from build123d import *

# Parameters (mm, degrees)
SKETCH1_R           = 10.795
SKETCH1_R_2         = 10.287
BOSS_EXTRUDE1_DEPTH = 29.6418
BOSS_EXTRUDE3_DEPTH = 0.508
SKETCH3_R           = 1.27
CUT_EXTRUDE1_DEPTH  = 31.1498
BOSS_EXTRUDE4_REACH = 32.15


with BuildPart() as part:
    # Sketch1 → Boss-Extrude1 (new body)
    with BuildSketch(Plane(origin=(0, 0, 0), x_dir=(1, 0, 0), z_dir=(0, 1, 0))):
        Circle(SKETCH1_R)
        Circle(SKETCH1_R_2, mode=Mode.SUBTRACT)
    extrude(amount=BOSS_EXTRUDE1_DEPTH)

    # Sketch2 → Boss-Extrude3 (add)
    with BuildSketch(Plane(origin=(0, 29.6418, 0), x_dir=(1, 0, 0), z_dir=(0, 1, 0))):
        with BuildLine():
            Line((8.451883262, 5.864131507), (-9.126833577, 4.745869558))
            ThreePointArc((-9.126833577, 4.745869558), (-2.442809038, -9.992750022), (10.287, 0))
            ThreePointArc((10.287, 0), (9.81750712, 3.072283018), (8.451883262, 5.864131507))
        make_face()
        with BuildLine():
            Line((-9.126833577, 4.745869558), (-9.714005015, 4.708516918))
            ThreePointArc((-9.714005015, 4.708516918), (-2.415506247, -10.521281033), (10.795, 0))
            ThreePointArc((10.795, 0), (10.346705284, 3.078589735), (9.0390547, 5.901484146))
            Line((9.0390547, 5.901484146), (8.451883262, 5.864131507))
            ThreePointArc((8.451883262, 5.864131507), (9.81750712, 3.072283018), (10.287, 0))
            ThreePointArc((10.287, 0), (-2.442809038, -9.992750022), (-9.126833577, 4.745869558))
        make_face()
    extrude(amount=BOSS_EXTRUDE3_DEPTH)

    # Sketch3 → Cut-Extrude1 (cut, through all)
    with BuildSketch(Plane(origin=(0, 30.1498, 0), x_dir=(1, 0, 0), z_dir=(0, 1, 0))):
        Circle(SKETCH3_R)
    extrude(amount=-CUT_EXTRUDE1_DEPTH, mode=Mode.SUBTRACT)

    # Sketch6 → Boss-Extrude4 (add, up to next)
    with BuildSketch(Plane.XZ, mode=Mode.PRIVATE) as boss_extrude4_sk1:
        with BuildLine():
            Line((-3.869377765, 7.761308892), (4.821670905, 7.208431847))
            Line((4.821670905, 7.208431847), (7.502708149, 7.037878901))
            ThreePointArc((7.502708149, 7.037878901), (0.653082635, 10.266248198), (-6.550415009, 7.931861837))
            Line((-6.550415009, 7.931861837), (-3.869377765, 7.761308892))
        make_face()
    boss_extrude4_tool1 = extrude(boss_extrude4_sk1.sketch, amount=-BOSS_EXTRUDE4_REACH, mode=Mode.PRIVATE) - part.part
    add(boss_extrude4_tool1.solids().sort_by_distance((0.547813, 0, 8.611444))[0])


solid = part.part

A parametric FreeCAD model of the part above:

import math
import FreeCAD as App
import Part
import Sketcher
from FreeCAD import Vector
Q = App.Units.Quantity

doc = App.newDocument("Part")
body = doc.addObject("PartDesign::Body", "Body")

# Sketch on XZ plane
sketch1 = doc.addObject("Sketcher::SketchObject", "Sketch")
body.addObject(sketch1)
sketch1.AttachmentSupport = (doc.XZ_Plane, [""])
sketch1.MapMode = "FlatFace"
sketch1.addGeometry([
    Part.Circle(Vector(0, 0, 0), Vector(0, 0, 1), 10.795),
    Part.Circle(Vector(0, 0, 0), Vector(0, 0, 1), 10.287),
], False)
sketch1.addConstraint([
    Sketcher.Constraint("Coincident", 0, 3, -1, 1),
    Sketcher.Constraint("Coincident", 1, 3, -1, 1),
    Sketcher.Constraint("Diameter", 0, Q("0.85 in")),
    Sketcher.Constraint("Diameter", 1, Q("0.81 in")),
])
pad1 = doc.addObject("PartDesign::Pad", "Pad")
body.addObject(pad1)
pad1.Profile = sketch1
pad1.Length = Q("1.167 in")
pad1.Reversed = True

# Sketch on XZ plane
sketch2 = doc.addObject("Sketcher::SketchObject", "Sketch001")
body.addObject(sketch2)
sketch2.AttachmentSupport = (doc.XZ_Plane, [""])
sketch2.MapMode = "FlatFace"
sketch2.AttachmentOffset = App.Placement(Vector(0, 0, -1.167 * 25.4), App.Rotation())
sketch2.addGeometry([
    Part.LineSegment(Vector(8.451883, -5.864132, 0), Vector(-9.126834, -4.74587, 0)),  # 0
    Part.LineSegment(Vector(-9.126834, -4.74587, 0), Vector(-9.714005, -4.708517, 0)),  # 1
    Part.ArcOfCircle(Part.Circle(Vector(0, 0, 0), Vector(0, 0, 1), 10.795), math.radians(0), math.radians(205.860131)),  # 2
    Part.ArcOfCircle(Part.Circle(Vector(0, 0, 0), Vector(0, 0, 1), 10.795), math.radians(-33.14001), math.radians(0)),  # 3
    Part.LineSegment(Vector(9.039055, -5.901484, 0), Vector(8.451883, -5.864132, 0)),  # 4
], False)
sketch2.addConstraint([
    Sketcher.Constraint("Coincident", 0, 2, 1, 1),
    Sketcher.Constraint("Coincident", 1, 2, 2, 2),
    Sketcher.Constraint("Tangent", 2, 1, 3, 2),
    Sketcher.Constraint("Coincident", 3, 1, 4, 1),
    Sketcher.Constraint("Coincident", 4, 2, 0, 1),
    Sketcher.Constraint("Coincident", 2, 3, -1, 1),
    Sketcher.Constraint("Equal", 2, 3),
    Sketcher.Constraint("PointOnObject", 2, 1, -1),
    Sketcher.Constraint("Parallel", 0, 1),
    Sketcher.Constraint("Parallel", 1, 4),
    Sketcher.Constraint("Equal", 1, 4),
    Sketcher.Constraint("Radius", 2, Q("0.425 in")),
    Sketcher.Constraint("Distance", 0, Q("17.61425 mm")),
    Sketcher.Constraint("Distance", 1, Q("0.588358 mm")),
    Sketcher.Constraint("DistanceY", 0, 2, -1, 1, Q("4.74587 mm")),
])
pad2 = doc.addObject("PartDesign::Pad", "Pad001")
body.addObject(pad2)
pad2.Profile = sketch2
pad2.Length = Q("0.02 in")
pad2.Reversed = True

# Sketch on XZ plane
sketch3 = doc.addObject("Sketcher::SketchObject", "Sketch002")
body.addObject(sketch3)
sketch3.AttachmentSupport = (doc.XZ_Plane, [""])
sketch3.MapMode = "FlatFace"
sketch3.AttachmentOffset = App.Placement(Vector(0, 0, -1.187 * 25.4), App.Rotation())
sketch3.addGeometry(Part.Circle(Vector(0, 0, 0), Vector(0, 0, 1), 1.27), False)
sketch3.addConstraint([
    Sketcher.Constraint("Coincident", 0, 3, -1, 1),
    Sketcher.Constraint("Diameter", 0, Q("0.1 in")),
])
pocket1 = doc.addObject("PartDesign::Pocket", "Pocket")
body.addObject(pocket1)
pocket1.Profile = sketch3
pocket1.Type = "ThroughAll"
pocket1.Reversed = True

# Sketch on XZ plane
sketch4 = doc.addObject("Sketcher::SketchObject", "Sketch003")
body.addObject(sketch4)
sketch4.AttachmentSupport = (doc.XZ_Plane, [""])
sketch4.MapMode = "FlatFace"
sketch4.addGeometry([
    Part.LineSegment(Vector(-3.869378, 7.761309, 0), Vector(4.821671, 7.208432, 0)),
    Part.LineSegment(Vector(4.821671, 7.208432, 0), Vector(7.502708, 7.037879, 0)),
    Part.ArcOfCircle(Part.Circle(Vector(0, 0, 0), Vector(0, 0, 1), 10.287), math.radians(43.169009), math.radians(129.551112)),
    Part.LineSegment(Vector(-6.550415, 7.931862, 0), Vector(-3.869378, 7.761309, 0)),
], False)
sketch4.addConstraint([
    Sketcher.Constraint("Coincident", 0, 2, 1, 1),
    Sketcher.Constraint("Coincident", 1, 2, 2, 1),
    Sketcher.Constraint("Coincident", 2, 2, 3, 1),
    Sketcher.Constraint("Coincident", 3, 2, 0, 1),
    Sketcher.Constraint("Coincident", 2, 3, -1, 1),
    Sketcher.Constraint("Parallel", 0, 1),
    Sketcher.Constraint("Parallel", 1, 3),
    Sketcher.Constraint("Equal", 1, 3),
    Sketcher.Constraint("Radius", 2, Q("0.405 in")),
    Sketcher.Constraint("DistanceX", -1, 1, 0, 2, Q("4.821671 mm")),
    Sketcher.Constraint("DistanceY", -1, 1, 0, 2, Q("7.208432 mm")),
    Sketcher.Constraint("DistanceX", -1, 1, 1, 2, Q("7.502708 mm")),
])
pad3 = doc.addObject("PartDesign::Pad", "Pad002")
body.addObject(pad3)
pad3.Profile = sketch4
pad3.Type = "UpToFirst"
pad3.Reversed = True

doc.recompute()
